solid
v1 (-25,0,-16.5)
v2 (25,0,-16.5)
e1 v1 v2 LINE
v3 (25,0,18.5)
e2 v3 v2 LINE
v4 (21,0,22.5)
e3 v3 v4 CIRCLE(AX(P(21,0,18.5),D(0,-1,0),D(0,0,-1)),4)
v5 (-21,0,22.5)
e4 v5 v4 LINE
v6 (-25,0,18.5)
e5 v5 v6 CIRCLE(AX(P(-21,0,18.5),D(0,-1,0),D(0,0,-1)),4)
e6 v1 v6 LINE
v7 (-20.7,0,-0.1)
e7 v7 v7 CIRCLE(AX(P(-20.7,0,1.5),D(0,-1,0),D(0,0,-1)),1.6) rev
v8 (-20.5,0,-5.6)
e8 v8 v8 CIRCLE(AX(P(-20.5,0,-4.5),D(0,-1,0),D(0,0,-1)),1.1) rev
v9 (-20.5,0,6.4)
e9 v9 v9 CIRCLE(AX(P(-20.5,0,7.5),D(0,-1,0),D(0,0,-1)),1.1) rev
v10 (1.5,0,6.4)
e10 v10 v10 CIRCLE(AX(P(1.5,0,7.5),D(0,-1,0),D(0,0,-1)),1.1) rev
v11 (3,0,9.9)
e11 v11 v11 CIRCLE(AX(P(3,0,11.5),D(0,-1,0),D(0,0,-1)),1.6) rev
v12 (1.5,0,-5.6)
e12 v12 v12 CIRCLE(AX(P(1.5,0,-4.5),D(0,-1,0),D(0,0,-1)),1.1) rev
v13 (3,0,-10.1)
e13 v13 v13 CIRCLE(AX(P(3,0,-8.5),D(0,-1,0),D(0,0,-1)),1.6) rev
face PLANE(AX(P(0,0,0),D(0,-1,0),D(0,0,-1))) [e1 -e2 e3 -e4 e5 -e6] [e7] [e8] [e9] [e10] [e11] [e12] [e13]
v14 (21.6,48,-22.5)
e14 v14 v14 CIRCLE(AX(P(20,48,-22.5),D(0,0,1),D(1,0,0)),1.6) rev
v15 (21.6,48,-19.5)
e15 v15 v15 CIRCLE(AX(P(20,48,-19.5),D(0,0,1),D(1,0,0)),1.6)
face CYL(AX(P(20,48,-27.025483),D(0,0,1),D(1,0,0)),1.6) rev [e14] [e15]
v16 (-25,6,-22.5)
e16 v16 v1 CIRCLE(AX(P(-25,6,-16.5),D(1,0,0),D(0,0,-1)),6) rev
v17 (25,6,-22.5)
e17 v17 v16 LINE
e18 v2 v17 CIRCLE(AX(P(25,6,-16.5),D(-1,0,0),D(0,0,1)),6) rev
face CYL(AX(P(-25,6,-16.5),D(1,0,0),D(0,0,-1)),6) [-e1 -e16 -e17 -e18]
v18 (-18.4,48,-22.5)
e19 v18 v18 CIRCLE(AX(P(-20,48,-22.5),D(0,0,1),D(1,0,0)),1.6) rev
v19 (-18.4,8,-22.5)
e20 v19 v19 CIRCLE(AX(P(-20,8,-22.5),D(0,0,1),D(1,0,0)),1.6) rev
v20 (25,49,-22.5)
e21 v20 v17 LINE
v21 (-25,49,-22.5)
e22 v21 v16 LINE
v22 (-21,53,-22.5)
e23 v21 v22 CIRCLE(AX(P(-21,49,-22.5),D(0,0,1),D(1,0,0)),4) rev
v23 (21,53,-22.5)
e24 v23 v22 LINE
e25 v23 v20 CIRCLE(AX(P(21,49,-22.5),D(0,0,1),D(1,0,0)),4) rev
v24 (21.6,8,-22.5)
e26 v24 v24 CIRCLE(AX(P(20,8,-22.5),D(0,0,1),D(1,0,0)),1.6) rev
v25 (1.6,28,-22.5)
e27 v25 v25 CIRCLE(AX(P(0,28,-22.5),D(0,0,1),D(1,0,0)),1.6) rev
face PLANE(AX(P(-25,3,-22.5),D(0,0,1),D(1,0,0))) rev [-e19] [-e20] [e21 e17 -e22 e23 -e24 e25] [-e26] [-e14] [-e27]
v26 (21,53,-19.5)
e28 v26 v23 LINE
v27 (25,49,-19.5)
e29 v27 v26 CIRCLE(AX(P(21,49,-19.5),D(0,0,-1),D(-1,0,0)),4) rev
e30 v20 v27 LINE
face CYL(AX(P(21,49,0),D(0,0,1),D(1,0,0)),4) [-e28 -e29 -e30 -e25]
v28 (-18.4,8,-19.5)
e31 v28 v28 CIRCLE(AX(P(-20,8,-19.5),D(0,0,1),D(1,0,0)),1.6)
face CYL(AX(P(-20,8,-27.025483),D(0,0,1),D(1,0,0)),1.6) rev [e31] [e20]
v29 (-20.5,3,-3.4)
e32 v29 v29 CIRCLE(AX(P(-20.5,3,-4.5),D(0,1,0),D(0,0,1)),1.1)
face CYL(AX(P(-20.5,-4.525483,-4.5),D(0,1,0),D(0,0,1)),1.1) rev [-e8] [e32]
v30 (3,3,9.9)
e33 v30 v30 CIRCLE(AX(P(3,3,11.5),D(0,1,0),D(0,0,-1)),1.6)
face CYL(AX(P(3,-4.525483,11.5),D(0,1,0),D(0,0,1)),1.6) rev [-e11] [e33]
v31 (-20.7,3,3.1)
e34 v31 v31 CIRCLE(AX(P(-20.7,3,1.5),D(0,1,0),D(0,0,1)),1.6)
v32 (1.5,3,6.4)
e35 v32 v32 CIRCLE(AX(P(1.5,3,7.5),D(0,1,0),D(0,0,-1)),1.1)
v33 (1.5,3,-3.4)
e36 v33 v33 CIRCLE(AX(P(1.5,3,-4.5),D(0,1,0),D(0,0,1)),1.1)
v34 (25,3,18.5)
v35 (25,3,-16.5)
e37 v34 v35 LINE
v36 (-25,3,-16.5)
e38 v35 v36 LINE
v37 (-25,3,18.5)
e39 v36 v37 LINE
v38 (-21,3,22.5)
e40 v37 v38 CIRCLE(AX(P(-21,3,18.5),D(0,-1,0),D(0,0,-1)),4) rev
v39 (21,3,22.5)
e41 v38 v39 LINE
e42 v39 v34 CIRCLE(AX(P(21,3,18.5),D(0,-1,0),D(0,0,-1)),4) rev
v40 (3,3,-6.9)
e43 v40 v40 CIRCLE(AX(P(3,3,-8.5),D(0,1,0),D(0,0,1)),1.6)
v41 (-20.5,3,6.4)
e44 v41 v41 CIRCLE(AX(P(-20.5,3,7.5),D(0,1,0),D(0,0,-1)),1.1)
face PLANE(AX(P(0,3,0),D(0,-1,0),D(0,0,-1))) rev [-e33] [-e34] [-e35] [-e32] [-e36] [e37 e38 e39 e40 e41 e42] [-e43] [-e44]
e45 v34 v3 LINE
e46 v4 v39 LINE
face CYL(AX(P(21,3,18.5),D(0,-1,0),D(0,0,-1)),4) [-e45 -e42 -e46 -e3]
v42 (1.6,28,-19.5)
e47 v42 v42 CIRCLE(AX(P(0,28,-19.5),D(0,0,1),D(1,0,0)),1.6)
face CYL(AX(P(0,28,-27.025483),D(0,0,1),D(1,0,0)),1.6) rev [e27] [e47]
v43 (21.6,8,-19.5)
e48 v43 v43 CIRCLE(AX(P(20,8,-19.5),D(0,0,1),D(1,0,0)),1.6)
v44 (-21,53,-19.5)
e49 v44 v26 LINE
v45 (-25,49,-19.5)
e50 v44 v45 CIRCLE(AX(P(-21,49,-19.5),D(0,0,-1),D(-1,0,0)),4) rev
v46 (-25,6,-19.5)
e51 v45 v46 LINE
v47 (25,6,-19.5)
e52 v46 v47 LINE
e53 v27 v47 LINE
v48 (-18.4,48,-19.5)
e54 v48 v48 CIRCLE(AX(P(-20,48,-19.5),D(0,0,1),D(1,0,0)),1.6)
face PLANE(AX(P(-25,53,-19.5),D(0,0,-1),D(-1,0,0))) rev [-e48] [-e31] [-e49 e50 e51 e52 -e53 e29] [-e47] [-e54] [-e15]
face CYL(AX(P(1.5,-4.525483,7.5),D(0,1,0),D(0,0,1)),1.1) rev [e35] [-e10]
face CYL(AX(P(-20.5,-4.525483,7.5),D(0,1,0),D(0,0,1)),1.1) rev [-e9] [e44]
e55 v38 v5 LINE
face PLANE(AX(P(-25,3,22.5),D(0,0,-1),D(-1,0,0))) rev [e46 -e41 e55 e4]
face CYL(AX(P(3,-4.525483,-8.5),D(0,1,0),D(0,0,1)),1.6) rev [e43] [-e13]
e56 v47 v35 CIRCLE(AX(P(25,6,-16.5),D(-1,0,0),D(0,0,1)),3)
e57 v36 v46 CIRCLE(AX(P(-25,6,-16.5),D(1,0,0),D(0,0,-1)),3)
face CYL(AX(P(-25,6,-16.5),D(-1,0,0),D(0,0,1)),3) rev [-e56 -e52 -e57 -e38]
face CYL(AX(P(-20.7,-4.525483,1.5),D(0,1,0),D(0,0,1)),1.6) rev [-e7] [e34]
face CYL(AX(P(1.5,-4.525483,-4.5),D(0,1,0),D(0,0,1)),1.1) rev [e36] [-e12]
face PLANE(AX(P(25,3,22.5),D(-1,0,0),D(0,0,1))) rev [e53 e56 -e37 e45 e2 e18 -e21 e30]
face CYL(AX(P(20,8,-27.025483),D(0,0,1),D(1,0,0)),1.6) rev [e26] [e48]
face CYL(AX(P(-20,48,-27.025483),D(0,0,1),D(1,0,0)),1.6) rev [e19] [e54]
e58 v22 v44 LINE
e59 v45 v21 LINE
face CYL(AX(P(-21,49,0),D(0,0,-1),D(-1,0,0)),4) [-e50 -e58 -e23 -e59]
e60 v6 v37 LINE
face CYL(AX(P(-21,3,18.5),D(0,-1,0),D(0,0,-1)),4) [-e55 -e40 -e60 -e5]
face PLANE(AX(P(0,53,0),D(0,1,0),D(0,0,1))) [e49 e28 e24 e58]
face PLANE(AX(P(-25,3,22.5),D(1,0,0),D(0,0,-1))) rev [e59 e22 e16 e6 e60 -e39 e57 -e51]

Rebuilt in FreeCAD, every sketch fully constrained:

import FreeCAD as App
import Part
import Sketcher
from FreeCAD import Vector
Q = App.Units.Quantity


def edges_at(feature, points):
    """Names of the edges that pass closest to the given points."""
    edges = feature.Shape.Edges
    near = lambda p: min(range(len(edges)), key=lambda i: edges[i].distToShape(Part.Vertex(*p))[0])
    return sorted({f"Edge{near(p) + 1}" for p in points})


def add_polygon(sketch, points):
    """Adds a closed chain of lines whose ends are joined by coincident constraints."""
    first, n = sketch.GeometryCount, len(points)
    for a, b in zip(points, points[1:] + points[:1]):
        sketch.addGeometry(Part.LineSegment(App.Vector(*a, 0), App.Vector(*b, 0)), False)
    for i in range(n):
        sketch.addConstraint(Sketcher.Constraint("Coincident", first + i, 2, first + (i + 1) % n, 1))

doc = App.newDocument("Part")
body = doc.addObject("PartDesign::Body", "Body")

sketch1 = body.newObject("Sketcher::SketchObject", "Sketch")
sketch1.AttachmentSupport = (doc.getObject("XZ_Plane"), [""])
sketch1.MapMode = "FlatFace"
add_polygon(sketch1, [(-25, -22), (-25, 22), (25, 22), (25, -22)])
sketch1.addConstraint([
    Sketcher.Constraint("Vertical", 0),
    Sketcher.Constraint("Horizontal", 1),
    Sketcher.Constraint("Vertical", 2),
    Sketcher.Constraint("Horizontal", 3),
    Sketcher.Constraint("Symmetric", 0, 2, 2, 2, -1, 1),
    Sketcher.Constraint("DistanceX", 1, 1, 1, 2, Q("50 mm")),
    Sketcher.Constraint("DistanceY", 0, 1, 0, 2, Q("45 mm")),
])
pad1 = body.newObject("PartDesign::Pad", "Pad")
pad1.Profile = sketch1
pad1.Length = 3
pad1.Reversed = True

sketch2 = body.newObject("Sketcher::SketchObject", "Sketch001")
sketch2.AttachmentSupport = (doc.getObject("XZ_Plane"), [""])
sketch2.MapMode = "FlatFace"
sketch2.AttachmentOffset = App.Placement(Vector(0, 0, -3), App.Rotation())
add_polygon(sketch2, [(-25, -22.5), (-25, -19.5), (25, -19.5), (25, -22.5)])
sketch2.addConstraint([
    Sketcher.Constraint("Vertical", 0),
    Sketcher.Constraint("Horizontal", 1),
    Sketcher.Constraint("Vertical", 2),
    Sketcher.Constraint("Horizontal", 3),
    Sketcher.Constraint("DistanceX", 1, 1, 1, 2, Q("50 mm")),
    Sketcher.Constraint("DistanceY", 0, 1, 0, 2, Q("3 mm")),
    Sketcher.Constraint("DistanceX", 0, 2, -1, 1, Q("25 mm")),
    Sketcher.Constraint("DistanceY", 0, 2, -1, 1, Q("19.5 mm")),
])
pad2 = body.newObject("PartDesign::Pad", "Pad001")
pad2.Profile = sketch2
pad2.Length = 50
pad2.Reversed = True

sketch3 = body.newObject("Sketcher::SketchObject", "Sketch002")
sketch3.AttachmentSupport = (doc.getObject("XZ_Plane"), [""])
sketch3.MapMode = "FlatFace"
sketch3.AttachmentOffset = App.Placement(Vector(0, 0, -3), App.Rotation())
sketch3.addGeometry([
    Part.Circle(Vector(3, -8.5, 0), Vector(0, 0, 1), 1.6),
    Part.Circle(Vector(3, 11.5, 0), Vector(0, 0, 1), 1.6),
    Part.Circle(Vector(-20.7, 1.5, 0), Vector(0, 0, 1), 1.6),
    Part.Circle(Vector(1.5, -4.5, 0), Vector(0, 0, 1), 1.1),
    Part.Circle(Vector(1.5, 7.5, 0), Vector(0, 0, 1), 1.1),
    Part.Circle(Vector(-20.5, -4.5, 0), Vector(0, 0, 1), 1.1),
    Part.Circle(Vector(-20.5, 7.5, 0), Vector(0, 0, 1), 1.1),
], False)
sketch3.addConstraint([
    Sketcher.Constraint("Equal", 0, 1),
    Sketcher.Constraint("Equal", 1, 2),
    Sketcher.Constraint("Equal", 3, 4),
    Sketcher.Constraint("Equal", 4, 5),
    Sketcher.Constraint("Equal", 5, 6),
    Sketcher.Constraint("Horizontal", 3, 3, 5, 3),
    Sketcher.Constraint("Horizontal", 4, 3, 6, 3),
    Sketcher.Constraint("Vertical", 0, 3, 1, 3),
    Sketcher.Constraint("Vertical", 3, 3, 4, 3),
    Sketcher.Constraint("Vertical", 5, 3, 6, 3),
    Sketcher.Constraint("Diameter", 0, Q("3.2 mm")),
    Sketcher.Constraint("Diameter", 3, Q("2.2 mm")),
    Sketcher.Constraint("DistanceX", -1, 1, 0, 3, Q("3 mm")),
    Sketcher.Constraint("DistanceY", 0, 3, 1, 3, Q("20 mm")),
    Sketcher.Constraint("DistanceY", 0, 3, 2, 3, Q("10 mm")),
    Sketcher.Constraint("DistanceY", 0, 3, 3, 3, Q("4 mm")),
    Sketcher.Constraint("DistanceY", 4, 3, 1, 3, Q("4 mm")),
    Sketcher.Constraint("DistanceX", 5, 3, 3, 3, Q("22 mm")),
    Sketcher.Constraint("DistanceY", 0, 3, -1, 1, Q("8.5 mm")),
    Sketcher.Constraint("DistanceX", 2, 3, -1, 1, Q("20.7 mm")),
    Sketcher.Constraint("DistanceX", -1, 1, 3, 3, Q("1.5 mm")),
])
pocket1 = body.newObject("PartDesign::Pocket", "Pocket")
pocket1.Profile = sketch3
pocket1.Length = 3
pocket1.Reversed = True

sketch4 = body.newObject("Sketcher::SketchObject", "Sketch003")
sketch4.AttachmentSupport = (doc.getObject("XY_Plane"), [""])
sketch4.MapMode = "FlatFace"
sketch4.AttachmentOffset = App.Placement(Vector(0, 0, -19.5), App.Rotation())
sketch4.addGeometry([
    Part.Circle(Vector(-20, 48, 0), Vector(0, 0, 1), 1.6),
    Part.Circle(Vector(20, 48, 0), Vector(0, 0, 1), 1.6),
    Part.Circle(Vector(20, 8, 0), Vector(0, 0, 1), 1.6),
    Part.Circle(Vector(-20, 8, 0), Vector(0, 0, 1), 1.6),
    Part.Circle(Vector(0, 28, 0), Vector(0, 0, 1), 1.6),
], False)
sketch4.addConstraint([
    Sketcher.Constraint("Equal", 0, 1),
    Sketcher.Constraint("Equal", 1, 2),
    Sketcher.Constraint("Equal", 2, 3),
    Sketcher.Constraint("Equal", 3, 4),
    Sketcher.Constraint("Symmetric", 0, 3, 1, 3, -2),
    Sketcher.Constraint("Symmetric", 2, 3, 3, 3, -2),
    Sketcher.Constraint("PointOnObject", 4, 3, -2),
    Sketcher.Constraint("Vertical", 1, 3, 2, 3),
    Sketcher.Constraint("Diameter", 0, Q("3.2 mm")),
    Sketcher.Constraint("DistanceX", 0, 3, -1, 1, Q("20 mm")),
    Sketcher.Constraint("DistanceY", -1, 1, 0, 3, Q("48 mm")),
    Sketcher.Constraint("DistanceY", -1, 1, 2, 3, Q("8 mm")),
    Sketcher.Constraint("DistanceY", -1, 1, 4, 3, Q("28 mm")),
])
pocket2 = body.newObject("PartDesign::Pocket", "Pocket001")
pocket2.Profile = sketch4
pocket2.Length = 3
doc.recompute()

fillet = body.newObject("PartDesign::Fillet", "Fillet")
fillet.Base = (pocket2, edges_at(pocket2, [
    (-25, 53, -21),
    (25, 53, -21),
    (25, 1.5, 22.5),
    (-25, 1.5, 22.5),
]))
fillet.Radius = 4
doc.recompute()

fillet2 = body.newObject("PartDesign::Fillet", "Fillet001")
fillet2.Base = (fillet, edges_at(fillet, [(0, 3, -19.5)]))
fillet2.Radius = 3
doc.recompute()

fillet3 = body.newObject("PartDesign::Fillet", "Fillet002")
fillet3.Base = (fillet2, edges_at(fillet2, [(0, 0, -22.5)]))
fillet3.Radius = 6

doc.recompute()
